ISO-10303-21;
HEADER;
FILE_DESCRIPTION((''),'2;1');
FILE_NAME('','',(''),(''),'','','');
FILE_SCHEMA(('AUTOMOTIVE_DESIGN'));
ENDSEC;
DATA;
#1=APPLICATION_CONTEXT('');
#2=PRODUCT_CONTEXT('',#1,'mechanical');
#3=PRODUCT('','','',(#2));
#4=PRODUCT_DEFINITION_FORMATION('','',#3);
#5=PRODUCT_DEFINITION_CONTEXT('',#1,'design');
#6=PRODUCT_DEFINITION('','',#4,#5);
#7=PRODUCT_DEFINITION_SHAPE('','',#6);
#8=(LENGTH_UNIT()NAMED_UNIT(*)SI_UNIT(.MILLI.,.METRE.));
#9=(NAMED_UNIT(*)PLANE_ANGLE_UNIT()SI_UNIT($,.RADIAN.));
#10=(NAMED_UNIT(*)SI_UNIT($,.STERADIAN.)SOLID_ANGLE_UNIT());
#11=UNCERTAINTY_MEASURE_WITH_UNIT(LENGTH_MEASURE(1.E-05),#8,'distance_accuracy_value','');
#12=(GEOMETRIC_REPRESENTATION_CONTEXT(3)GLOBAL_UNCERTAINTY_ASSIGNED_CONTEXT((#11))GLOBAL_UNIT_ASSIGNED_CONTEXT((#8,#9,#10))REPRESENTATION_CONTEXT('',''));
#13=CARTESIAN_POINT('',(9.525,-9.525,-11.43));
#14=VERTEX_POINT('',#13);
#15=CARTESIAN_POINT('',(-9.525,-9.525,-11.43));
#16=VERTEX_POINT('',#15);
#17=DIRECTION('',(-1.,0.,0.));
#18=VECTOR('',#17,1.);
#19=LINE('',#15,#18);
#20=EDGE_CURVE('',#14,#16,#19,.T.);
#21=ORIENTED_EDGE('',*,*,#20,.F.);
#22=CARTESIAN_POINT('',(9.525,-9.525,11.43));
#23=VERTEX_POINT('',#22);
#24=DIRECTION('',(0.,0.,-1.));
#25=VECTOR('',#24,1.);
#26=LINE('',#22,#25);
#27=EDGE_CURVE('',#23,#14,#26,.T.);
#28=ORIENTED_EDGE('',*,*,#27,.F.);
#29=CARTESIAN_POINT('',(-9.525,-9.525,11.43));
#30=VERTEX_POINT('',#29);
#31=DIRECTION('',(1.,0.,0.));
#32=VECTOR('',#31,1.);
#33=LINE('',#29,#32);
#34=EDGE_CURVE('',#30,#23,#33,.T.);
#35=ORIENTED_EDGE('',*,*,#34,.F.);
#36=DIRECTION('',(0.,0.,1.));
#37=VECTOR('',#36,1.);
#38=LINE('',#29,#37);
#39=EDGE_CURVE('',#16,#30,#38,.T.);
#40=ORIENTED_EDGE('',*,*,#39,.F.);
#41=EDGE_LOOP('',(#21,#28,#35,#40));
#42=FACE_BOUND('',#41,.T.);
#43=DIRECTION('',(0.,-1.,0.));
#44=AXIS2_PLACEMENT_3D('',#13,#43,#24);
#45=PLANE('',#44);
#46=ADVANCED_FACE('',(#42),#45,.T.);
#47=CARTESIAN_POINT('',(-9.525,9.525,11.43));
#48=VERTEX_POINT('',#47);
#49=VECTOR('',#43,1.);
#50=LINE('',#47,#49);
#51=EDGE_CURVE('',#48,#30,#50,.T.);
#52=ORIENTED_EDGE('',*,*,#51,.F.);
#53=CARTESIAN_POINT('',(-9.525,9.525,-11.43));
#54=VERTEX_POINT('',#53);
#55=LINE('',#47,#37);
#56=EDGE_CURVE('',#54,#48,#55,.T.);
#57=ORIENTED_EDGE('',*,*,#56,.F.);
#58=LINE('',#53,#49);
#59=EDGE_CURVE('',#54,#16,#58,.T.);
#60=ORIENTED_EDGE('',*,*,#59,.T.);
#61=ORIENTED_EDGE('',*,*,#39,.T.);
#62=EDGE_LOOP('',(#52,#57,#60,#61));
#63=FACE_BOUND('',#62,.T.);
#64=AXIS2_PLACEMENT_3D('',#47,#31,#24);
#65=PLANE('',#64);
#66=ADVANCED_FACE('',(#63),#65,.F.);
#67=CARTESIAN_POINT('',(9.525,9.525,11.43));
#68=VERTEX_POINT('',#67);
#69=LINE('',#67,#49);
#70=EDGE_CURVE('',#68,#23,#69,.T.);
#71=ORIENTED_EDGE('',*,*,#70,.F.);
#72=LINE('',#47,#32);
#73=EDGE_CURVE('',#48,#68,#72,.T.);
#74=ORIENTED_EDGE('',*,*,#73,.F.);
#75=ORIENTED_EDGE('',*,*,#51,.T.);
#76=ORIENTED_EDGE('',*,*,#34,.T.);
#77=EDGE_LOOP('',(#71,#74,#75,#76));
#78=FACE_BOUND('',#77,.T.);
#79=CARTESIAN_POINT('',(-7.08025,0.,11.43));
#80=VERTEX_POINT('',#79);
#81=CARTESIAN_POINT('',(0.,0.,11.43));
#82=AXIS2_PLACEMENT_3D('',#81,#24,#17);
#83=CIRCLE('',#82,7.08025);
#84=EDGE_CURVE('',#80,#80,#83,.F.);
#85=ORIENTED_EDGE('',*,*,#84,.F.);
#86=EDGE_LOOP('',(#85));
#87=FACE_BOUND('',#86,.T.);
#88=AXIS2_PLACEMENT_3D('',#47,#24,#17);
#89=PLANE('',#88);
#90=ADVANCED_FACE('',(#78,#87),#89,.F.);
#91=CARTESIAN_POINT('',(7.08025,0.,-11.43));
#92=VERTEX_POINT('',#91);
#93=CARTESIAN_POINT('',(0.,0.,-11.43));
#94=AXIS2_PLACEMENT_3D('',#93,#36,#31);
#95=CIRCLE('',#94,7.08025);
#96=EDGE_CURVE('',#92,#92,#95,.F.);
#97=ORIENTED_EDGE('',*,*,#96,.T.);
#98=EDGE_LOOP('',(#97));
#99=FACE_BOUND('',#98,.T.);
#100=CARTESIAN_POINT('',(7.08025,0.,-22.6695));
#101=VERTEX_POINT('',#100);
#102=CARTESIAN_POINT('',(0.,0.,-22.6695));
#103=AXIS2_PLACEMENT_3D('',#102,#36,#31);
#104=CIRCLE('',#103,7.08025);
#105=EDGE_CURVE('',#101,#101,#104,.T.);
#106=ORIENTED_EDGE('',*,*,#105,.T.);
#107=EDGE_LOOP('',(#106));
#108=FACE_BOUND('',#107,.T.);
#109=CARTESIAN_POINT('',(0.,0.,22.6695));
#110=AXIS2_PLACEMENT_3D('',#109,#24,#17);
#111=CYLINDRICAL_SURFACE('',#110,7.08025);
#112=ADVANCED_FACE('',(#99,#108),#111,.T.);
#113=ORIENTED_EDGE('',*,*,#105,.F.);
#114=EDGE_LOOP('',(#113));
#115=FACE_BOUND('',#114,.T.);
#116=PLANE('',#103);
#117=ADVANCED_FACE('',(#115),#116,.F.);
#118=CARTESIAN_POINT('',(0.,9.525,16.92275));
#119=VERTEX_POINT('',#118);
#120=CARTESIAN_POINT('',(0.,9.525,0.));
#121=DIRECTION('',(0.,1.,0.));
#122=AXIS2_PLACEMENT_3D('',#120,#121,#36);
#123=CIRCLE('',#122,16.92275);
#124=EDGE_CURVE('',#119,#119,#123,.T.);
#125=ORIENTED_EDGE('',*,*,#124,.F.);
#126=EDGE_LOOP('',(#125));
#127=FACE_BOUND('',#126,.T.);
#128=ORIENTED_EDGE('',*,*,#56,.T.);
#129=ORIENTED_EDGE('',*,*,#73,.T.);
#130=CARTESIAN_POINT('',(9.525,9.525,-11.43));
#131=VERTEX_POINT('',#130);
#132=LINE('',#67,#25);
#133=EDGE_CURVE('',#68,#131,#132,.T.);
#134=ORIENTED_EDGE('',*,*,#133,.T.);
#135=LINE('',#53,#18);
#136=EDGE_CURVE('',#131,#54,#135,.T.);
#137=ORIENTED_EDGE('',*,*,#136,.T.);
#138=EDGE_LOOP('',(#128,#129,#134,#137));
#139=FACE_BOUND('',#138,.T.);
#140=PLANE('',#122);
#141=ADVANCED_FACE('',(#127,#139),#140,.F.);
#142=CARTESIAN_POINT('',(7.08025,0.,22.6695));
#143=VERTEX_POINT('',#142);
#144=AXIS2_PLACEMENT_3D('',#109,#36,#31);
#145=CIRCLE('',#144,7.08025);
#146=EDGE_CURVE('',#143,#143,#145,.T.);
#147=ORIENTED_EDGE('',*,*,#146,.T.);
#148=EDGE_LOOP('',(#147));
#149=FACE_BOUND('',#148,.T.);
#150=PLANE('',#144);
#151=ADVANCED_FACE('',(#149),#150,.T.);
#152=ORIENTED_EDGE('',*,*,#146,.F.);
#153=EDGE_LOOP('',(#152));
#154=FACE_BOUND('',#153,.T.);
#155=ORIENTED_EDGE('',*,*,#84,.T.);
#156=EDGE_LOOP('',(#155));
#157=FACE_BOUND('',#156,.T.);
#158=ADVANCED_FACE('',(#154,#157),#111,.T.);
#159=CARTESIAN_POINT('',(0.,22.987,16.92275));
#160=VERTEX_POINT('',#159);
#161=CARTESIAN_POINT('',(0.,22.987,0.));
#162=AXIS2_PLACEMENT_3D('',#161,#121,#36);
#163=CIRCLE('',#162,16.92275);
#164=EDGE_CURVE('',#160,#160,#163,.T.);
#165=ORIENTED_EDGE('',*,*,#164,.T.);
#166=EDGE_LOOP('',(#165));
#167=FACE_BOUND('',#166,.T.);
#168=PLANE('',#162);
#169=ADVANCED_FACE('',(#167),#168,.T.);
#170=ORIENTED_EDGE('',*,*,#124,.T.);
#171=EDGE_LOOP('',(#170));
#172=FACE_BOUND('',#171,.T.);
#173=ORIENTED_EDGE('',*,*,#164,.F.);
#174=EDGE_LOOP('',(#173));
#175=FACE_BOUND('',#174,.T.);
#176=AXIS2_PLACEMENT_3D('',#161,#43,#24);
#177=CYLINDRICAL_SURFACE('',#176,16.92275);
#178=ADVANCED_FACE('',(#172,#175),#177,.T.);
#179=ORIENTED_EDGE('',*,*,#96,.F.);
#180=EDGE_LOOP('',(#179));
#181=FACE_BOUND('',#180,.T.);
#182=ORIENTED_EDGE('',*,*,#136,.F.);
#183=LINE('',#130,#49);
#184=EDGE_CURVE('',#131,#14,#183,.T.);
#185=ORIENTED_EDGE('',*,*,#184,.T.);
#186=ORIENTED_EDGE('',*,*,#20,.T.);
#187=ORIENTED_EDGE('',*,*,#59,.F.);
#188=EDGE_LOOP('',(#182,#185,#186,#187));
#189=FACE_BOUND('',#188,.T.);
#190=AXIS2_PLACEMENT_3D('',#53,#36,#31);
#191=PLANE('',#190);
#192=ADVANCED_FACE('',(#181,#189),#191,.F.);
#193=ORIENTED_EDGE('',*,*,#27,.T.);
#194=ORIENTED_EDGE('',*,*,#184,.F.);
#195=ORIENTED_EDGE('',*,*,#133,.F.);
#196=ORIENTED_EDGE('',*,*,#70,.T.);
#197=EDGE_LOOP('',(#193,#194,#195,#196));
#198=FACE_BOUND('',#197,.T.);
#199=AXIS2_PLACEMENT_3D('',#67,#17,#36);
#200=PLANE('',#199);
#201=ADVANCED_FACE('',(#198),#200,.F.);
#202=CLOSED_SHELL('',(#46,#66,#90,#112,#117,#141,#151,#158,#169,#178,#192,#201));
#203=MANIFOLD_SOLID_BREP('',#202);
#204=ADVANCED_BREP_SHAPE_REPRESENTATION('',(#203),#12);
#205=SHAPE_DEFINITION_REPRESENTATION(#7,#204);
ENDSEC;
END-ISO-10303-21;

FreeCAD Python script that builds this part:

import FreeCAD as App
import Part
import Sketcher

V = App.Vector
Q = App.Units.Quantity


def add_polygon(sketch, points):
    """Adds a closed chain of lines whose ends are joined by coincident constraints."""
    first, n = sketch.GeometryCount, len(points)
    for a, b in zip(points, points[1:] + points[:1]):
        sketch.addGeometry(Part.LineSegment(App.Vector(*a, 0), App.Vector(*b, 0)), False)
    for i in range(n):
        sketch.addConstraint(Sketcher.Constraint("Coincident", first + i, 2, first + (i + 1) % n, 1))

doc = App.newDocument("Part")
body = doc.addObject("PartDesign::Body", "Body")

sketch1 = body.newObject("Sketcher::SketchObject", "Sketch")
sketch1.AttachmentSupport = (doc.getObject("XZ_Plane"), [""])
sketch1.MapMode = "FlatFace"
add_polygon(sketch1, [(-10, -11), (-10, 11), (10, 11), (10, -11)])
sketch1.addConstraint([
    Sketcher.Constraint("Vertical", 0),
    Sketcher.Constraint("Horizontal", 1),
    Sketcher.Constraint("Vertical", 2),
    Sketcher.Constraint("Horizontal", 3),
    Sketcher.Constraint("Symmetric", 0, 2, 2, 2, -1, 1),
    Sketcher.Constraint("DistanceY", 0, 1, 0, 2, Q("0.9 in")),
    Sketcher.Constraint("DistanceX", 1, 1, 1, 2, Q("0.75 in")),
])
pad1 = body.newObject("PartDesign::Pad", "Pad")
pad1.Profile = sketch1
pad1.Length = Q("0.75 in")
pad1.Midplane = True

sketch2 = body.newObject("Sketcher::SketchObject", "Sketch001")
sketch2.AttachmentSupport = (doc.getObject("XZ_Plane"), [""])
sketch2.MapMode = "FlatFace"
sketch2.AttachmentOffset = App.Placement(V(0, 0, -0.375 * 25.4), App.Rotation())
sketch2.addGeometry(Part.Circle(V(0, 0, 0), V(0, 0, 1), 17), False)
sketch2.addConstraint([
    Sketcher.Constraint("Coincident", 0, 3, -1, 1),
    Sketcher.Constraint("Diameter", 0, Q("1.3325 in")),
])
pad2 = body.newObject("PartDesign::Pad", "Pad001")
pad2.Profile = sketch2
pad2.Length = Q("0.53 in")
pad2.Reversed = True

sketch3 = body.newObject("Sketcher::SketchObject", "Sketch002")
sketch3.AttachmentSupport = (doc.getObject("XY_Plane"), [""])
sketch3.MapMode = "FlatFace"
sketch3.addGeometry(Part.Circle(V(0, 0, 0), V(0, 0, 1), 7), False)
sketch3.addConstraint([
    Sketcher.Constraint("Coincident", 0, 3, -1, 1),
    Sketcher.Constraint("Diameter", 0, Q("0.5575 in")),
])
pad3 = body.newObject("PartDesign::Pad", "Pad002")
pad3.Profile = sketch3
pad3.Length = Q("1.785 in")
pad3.Midplane = True

doc.recompute()
